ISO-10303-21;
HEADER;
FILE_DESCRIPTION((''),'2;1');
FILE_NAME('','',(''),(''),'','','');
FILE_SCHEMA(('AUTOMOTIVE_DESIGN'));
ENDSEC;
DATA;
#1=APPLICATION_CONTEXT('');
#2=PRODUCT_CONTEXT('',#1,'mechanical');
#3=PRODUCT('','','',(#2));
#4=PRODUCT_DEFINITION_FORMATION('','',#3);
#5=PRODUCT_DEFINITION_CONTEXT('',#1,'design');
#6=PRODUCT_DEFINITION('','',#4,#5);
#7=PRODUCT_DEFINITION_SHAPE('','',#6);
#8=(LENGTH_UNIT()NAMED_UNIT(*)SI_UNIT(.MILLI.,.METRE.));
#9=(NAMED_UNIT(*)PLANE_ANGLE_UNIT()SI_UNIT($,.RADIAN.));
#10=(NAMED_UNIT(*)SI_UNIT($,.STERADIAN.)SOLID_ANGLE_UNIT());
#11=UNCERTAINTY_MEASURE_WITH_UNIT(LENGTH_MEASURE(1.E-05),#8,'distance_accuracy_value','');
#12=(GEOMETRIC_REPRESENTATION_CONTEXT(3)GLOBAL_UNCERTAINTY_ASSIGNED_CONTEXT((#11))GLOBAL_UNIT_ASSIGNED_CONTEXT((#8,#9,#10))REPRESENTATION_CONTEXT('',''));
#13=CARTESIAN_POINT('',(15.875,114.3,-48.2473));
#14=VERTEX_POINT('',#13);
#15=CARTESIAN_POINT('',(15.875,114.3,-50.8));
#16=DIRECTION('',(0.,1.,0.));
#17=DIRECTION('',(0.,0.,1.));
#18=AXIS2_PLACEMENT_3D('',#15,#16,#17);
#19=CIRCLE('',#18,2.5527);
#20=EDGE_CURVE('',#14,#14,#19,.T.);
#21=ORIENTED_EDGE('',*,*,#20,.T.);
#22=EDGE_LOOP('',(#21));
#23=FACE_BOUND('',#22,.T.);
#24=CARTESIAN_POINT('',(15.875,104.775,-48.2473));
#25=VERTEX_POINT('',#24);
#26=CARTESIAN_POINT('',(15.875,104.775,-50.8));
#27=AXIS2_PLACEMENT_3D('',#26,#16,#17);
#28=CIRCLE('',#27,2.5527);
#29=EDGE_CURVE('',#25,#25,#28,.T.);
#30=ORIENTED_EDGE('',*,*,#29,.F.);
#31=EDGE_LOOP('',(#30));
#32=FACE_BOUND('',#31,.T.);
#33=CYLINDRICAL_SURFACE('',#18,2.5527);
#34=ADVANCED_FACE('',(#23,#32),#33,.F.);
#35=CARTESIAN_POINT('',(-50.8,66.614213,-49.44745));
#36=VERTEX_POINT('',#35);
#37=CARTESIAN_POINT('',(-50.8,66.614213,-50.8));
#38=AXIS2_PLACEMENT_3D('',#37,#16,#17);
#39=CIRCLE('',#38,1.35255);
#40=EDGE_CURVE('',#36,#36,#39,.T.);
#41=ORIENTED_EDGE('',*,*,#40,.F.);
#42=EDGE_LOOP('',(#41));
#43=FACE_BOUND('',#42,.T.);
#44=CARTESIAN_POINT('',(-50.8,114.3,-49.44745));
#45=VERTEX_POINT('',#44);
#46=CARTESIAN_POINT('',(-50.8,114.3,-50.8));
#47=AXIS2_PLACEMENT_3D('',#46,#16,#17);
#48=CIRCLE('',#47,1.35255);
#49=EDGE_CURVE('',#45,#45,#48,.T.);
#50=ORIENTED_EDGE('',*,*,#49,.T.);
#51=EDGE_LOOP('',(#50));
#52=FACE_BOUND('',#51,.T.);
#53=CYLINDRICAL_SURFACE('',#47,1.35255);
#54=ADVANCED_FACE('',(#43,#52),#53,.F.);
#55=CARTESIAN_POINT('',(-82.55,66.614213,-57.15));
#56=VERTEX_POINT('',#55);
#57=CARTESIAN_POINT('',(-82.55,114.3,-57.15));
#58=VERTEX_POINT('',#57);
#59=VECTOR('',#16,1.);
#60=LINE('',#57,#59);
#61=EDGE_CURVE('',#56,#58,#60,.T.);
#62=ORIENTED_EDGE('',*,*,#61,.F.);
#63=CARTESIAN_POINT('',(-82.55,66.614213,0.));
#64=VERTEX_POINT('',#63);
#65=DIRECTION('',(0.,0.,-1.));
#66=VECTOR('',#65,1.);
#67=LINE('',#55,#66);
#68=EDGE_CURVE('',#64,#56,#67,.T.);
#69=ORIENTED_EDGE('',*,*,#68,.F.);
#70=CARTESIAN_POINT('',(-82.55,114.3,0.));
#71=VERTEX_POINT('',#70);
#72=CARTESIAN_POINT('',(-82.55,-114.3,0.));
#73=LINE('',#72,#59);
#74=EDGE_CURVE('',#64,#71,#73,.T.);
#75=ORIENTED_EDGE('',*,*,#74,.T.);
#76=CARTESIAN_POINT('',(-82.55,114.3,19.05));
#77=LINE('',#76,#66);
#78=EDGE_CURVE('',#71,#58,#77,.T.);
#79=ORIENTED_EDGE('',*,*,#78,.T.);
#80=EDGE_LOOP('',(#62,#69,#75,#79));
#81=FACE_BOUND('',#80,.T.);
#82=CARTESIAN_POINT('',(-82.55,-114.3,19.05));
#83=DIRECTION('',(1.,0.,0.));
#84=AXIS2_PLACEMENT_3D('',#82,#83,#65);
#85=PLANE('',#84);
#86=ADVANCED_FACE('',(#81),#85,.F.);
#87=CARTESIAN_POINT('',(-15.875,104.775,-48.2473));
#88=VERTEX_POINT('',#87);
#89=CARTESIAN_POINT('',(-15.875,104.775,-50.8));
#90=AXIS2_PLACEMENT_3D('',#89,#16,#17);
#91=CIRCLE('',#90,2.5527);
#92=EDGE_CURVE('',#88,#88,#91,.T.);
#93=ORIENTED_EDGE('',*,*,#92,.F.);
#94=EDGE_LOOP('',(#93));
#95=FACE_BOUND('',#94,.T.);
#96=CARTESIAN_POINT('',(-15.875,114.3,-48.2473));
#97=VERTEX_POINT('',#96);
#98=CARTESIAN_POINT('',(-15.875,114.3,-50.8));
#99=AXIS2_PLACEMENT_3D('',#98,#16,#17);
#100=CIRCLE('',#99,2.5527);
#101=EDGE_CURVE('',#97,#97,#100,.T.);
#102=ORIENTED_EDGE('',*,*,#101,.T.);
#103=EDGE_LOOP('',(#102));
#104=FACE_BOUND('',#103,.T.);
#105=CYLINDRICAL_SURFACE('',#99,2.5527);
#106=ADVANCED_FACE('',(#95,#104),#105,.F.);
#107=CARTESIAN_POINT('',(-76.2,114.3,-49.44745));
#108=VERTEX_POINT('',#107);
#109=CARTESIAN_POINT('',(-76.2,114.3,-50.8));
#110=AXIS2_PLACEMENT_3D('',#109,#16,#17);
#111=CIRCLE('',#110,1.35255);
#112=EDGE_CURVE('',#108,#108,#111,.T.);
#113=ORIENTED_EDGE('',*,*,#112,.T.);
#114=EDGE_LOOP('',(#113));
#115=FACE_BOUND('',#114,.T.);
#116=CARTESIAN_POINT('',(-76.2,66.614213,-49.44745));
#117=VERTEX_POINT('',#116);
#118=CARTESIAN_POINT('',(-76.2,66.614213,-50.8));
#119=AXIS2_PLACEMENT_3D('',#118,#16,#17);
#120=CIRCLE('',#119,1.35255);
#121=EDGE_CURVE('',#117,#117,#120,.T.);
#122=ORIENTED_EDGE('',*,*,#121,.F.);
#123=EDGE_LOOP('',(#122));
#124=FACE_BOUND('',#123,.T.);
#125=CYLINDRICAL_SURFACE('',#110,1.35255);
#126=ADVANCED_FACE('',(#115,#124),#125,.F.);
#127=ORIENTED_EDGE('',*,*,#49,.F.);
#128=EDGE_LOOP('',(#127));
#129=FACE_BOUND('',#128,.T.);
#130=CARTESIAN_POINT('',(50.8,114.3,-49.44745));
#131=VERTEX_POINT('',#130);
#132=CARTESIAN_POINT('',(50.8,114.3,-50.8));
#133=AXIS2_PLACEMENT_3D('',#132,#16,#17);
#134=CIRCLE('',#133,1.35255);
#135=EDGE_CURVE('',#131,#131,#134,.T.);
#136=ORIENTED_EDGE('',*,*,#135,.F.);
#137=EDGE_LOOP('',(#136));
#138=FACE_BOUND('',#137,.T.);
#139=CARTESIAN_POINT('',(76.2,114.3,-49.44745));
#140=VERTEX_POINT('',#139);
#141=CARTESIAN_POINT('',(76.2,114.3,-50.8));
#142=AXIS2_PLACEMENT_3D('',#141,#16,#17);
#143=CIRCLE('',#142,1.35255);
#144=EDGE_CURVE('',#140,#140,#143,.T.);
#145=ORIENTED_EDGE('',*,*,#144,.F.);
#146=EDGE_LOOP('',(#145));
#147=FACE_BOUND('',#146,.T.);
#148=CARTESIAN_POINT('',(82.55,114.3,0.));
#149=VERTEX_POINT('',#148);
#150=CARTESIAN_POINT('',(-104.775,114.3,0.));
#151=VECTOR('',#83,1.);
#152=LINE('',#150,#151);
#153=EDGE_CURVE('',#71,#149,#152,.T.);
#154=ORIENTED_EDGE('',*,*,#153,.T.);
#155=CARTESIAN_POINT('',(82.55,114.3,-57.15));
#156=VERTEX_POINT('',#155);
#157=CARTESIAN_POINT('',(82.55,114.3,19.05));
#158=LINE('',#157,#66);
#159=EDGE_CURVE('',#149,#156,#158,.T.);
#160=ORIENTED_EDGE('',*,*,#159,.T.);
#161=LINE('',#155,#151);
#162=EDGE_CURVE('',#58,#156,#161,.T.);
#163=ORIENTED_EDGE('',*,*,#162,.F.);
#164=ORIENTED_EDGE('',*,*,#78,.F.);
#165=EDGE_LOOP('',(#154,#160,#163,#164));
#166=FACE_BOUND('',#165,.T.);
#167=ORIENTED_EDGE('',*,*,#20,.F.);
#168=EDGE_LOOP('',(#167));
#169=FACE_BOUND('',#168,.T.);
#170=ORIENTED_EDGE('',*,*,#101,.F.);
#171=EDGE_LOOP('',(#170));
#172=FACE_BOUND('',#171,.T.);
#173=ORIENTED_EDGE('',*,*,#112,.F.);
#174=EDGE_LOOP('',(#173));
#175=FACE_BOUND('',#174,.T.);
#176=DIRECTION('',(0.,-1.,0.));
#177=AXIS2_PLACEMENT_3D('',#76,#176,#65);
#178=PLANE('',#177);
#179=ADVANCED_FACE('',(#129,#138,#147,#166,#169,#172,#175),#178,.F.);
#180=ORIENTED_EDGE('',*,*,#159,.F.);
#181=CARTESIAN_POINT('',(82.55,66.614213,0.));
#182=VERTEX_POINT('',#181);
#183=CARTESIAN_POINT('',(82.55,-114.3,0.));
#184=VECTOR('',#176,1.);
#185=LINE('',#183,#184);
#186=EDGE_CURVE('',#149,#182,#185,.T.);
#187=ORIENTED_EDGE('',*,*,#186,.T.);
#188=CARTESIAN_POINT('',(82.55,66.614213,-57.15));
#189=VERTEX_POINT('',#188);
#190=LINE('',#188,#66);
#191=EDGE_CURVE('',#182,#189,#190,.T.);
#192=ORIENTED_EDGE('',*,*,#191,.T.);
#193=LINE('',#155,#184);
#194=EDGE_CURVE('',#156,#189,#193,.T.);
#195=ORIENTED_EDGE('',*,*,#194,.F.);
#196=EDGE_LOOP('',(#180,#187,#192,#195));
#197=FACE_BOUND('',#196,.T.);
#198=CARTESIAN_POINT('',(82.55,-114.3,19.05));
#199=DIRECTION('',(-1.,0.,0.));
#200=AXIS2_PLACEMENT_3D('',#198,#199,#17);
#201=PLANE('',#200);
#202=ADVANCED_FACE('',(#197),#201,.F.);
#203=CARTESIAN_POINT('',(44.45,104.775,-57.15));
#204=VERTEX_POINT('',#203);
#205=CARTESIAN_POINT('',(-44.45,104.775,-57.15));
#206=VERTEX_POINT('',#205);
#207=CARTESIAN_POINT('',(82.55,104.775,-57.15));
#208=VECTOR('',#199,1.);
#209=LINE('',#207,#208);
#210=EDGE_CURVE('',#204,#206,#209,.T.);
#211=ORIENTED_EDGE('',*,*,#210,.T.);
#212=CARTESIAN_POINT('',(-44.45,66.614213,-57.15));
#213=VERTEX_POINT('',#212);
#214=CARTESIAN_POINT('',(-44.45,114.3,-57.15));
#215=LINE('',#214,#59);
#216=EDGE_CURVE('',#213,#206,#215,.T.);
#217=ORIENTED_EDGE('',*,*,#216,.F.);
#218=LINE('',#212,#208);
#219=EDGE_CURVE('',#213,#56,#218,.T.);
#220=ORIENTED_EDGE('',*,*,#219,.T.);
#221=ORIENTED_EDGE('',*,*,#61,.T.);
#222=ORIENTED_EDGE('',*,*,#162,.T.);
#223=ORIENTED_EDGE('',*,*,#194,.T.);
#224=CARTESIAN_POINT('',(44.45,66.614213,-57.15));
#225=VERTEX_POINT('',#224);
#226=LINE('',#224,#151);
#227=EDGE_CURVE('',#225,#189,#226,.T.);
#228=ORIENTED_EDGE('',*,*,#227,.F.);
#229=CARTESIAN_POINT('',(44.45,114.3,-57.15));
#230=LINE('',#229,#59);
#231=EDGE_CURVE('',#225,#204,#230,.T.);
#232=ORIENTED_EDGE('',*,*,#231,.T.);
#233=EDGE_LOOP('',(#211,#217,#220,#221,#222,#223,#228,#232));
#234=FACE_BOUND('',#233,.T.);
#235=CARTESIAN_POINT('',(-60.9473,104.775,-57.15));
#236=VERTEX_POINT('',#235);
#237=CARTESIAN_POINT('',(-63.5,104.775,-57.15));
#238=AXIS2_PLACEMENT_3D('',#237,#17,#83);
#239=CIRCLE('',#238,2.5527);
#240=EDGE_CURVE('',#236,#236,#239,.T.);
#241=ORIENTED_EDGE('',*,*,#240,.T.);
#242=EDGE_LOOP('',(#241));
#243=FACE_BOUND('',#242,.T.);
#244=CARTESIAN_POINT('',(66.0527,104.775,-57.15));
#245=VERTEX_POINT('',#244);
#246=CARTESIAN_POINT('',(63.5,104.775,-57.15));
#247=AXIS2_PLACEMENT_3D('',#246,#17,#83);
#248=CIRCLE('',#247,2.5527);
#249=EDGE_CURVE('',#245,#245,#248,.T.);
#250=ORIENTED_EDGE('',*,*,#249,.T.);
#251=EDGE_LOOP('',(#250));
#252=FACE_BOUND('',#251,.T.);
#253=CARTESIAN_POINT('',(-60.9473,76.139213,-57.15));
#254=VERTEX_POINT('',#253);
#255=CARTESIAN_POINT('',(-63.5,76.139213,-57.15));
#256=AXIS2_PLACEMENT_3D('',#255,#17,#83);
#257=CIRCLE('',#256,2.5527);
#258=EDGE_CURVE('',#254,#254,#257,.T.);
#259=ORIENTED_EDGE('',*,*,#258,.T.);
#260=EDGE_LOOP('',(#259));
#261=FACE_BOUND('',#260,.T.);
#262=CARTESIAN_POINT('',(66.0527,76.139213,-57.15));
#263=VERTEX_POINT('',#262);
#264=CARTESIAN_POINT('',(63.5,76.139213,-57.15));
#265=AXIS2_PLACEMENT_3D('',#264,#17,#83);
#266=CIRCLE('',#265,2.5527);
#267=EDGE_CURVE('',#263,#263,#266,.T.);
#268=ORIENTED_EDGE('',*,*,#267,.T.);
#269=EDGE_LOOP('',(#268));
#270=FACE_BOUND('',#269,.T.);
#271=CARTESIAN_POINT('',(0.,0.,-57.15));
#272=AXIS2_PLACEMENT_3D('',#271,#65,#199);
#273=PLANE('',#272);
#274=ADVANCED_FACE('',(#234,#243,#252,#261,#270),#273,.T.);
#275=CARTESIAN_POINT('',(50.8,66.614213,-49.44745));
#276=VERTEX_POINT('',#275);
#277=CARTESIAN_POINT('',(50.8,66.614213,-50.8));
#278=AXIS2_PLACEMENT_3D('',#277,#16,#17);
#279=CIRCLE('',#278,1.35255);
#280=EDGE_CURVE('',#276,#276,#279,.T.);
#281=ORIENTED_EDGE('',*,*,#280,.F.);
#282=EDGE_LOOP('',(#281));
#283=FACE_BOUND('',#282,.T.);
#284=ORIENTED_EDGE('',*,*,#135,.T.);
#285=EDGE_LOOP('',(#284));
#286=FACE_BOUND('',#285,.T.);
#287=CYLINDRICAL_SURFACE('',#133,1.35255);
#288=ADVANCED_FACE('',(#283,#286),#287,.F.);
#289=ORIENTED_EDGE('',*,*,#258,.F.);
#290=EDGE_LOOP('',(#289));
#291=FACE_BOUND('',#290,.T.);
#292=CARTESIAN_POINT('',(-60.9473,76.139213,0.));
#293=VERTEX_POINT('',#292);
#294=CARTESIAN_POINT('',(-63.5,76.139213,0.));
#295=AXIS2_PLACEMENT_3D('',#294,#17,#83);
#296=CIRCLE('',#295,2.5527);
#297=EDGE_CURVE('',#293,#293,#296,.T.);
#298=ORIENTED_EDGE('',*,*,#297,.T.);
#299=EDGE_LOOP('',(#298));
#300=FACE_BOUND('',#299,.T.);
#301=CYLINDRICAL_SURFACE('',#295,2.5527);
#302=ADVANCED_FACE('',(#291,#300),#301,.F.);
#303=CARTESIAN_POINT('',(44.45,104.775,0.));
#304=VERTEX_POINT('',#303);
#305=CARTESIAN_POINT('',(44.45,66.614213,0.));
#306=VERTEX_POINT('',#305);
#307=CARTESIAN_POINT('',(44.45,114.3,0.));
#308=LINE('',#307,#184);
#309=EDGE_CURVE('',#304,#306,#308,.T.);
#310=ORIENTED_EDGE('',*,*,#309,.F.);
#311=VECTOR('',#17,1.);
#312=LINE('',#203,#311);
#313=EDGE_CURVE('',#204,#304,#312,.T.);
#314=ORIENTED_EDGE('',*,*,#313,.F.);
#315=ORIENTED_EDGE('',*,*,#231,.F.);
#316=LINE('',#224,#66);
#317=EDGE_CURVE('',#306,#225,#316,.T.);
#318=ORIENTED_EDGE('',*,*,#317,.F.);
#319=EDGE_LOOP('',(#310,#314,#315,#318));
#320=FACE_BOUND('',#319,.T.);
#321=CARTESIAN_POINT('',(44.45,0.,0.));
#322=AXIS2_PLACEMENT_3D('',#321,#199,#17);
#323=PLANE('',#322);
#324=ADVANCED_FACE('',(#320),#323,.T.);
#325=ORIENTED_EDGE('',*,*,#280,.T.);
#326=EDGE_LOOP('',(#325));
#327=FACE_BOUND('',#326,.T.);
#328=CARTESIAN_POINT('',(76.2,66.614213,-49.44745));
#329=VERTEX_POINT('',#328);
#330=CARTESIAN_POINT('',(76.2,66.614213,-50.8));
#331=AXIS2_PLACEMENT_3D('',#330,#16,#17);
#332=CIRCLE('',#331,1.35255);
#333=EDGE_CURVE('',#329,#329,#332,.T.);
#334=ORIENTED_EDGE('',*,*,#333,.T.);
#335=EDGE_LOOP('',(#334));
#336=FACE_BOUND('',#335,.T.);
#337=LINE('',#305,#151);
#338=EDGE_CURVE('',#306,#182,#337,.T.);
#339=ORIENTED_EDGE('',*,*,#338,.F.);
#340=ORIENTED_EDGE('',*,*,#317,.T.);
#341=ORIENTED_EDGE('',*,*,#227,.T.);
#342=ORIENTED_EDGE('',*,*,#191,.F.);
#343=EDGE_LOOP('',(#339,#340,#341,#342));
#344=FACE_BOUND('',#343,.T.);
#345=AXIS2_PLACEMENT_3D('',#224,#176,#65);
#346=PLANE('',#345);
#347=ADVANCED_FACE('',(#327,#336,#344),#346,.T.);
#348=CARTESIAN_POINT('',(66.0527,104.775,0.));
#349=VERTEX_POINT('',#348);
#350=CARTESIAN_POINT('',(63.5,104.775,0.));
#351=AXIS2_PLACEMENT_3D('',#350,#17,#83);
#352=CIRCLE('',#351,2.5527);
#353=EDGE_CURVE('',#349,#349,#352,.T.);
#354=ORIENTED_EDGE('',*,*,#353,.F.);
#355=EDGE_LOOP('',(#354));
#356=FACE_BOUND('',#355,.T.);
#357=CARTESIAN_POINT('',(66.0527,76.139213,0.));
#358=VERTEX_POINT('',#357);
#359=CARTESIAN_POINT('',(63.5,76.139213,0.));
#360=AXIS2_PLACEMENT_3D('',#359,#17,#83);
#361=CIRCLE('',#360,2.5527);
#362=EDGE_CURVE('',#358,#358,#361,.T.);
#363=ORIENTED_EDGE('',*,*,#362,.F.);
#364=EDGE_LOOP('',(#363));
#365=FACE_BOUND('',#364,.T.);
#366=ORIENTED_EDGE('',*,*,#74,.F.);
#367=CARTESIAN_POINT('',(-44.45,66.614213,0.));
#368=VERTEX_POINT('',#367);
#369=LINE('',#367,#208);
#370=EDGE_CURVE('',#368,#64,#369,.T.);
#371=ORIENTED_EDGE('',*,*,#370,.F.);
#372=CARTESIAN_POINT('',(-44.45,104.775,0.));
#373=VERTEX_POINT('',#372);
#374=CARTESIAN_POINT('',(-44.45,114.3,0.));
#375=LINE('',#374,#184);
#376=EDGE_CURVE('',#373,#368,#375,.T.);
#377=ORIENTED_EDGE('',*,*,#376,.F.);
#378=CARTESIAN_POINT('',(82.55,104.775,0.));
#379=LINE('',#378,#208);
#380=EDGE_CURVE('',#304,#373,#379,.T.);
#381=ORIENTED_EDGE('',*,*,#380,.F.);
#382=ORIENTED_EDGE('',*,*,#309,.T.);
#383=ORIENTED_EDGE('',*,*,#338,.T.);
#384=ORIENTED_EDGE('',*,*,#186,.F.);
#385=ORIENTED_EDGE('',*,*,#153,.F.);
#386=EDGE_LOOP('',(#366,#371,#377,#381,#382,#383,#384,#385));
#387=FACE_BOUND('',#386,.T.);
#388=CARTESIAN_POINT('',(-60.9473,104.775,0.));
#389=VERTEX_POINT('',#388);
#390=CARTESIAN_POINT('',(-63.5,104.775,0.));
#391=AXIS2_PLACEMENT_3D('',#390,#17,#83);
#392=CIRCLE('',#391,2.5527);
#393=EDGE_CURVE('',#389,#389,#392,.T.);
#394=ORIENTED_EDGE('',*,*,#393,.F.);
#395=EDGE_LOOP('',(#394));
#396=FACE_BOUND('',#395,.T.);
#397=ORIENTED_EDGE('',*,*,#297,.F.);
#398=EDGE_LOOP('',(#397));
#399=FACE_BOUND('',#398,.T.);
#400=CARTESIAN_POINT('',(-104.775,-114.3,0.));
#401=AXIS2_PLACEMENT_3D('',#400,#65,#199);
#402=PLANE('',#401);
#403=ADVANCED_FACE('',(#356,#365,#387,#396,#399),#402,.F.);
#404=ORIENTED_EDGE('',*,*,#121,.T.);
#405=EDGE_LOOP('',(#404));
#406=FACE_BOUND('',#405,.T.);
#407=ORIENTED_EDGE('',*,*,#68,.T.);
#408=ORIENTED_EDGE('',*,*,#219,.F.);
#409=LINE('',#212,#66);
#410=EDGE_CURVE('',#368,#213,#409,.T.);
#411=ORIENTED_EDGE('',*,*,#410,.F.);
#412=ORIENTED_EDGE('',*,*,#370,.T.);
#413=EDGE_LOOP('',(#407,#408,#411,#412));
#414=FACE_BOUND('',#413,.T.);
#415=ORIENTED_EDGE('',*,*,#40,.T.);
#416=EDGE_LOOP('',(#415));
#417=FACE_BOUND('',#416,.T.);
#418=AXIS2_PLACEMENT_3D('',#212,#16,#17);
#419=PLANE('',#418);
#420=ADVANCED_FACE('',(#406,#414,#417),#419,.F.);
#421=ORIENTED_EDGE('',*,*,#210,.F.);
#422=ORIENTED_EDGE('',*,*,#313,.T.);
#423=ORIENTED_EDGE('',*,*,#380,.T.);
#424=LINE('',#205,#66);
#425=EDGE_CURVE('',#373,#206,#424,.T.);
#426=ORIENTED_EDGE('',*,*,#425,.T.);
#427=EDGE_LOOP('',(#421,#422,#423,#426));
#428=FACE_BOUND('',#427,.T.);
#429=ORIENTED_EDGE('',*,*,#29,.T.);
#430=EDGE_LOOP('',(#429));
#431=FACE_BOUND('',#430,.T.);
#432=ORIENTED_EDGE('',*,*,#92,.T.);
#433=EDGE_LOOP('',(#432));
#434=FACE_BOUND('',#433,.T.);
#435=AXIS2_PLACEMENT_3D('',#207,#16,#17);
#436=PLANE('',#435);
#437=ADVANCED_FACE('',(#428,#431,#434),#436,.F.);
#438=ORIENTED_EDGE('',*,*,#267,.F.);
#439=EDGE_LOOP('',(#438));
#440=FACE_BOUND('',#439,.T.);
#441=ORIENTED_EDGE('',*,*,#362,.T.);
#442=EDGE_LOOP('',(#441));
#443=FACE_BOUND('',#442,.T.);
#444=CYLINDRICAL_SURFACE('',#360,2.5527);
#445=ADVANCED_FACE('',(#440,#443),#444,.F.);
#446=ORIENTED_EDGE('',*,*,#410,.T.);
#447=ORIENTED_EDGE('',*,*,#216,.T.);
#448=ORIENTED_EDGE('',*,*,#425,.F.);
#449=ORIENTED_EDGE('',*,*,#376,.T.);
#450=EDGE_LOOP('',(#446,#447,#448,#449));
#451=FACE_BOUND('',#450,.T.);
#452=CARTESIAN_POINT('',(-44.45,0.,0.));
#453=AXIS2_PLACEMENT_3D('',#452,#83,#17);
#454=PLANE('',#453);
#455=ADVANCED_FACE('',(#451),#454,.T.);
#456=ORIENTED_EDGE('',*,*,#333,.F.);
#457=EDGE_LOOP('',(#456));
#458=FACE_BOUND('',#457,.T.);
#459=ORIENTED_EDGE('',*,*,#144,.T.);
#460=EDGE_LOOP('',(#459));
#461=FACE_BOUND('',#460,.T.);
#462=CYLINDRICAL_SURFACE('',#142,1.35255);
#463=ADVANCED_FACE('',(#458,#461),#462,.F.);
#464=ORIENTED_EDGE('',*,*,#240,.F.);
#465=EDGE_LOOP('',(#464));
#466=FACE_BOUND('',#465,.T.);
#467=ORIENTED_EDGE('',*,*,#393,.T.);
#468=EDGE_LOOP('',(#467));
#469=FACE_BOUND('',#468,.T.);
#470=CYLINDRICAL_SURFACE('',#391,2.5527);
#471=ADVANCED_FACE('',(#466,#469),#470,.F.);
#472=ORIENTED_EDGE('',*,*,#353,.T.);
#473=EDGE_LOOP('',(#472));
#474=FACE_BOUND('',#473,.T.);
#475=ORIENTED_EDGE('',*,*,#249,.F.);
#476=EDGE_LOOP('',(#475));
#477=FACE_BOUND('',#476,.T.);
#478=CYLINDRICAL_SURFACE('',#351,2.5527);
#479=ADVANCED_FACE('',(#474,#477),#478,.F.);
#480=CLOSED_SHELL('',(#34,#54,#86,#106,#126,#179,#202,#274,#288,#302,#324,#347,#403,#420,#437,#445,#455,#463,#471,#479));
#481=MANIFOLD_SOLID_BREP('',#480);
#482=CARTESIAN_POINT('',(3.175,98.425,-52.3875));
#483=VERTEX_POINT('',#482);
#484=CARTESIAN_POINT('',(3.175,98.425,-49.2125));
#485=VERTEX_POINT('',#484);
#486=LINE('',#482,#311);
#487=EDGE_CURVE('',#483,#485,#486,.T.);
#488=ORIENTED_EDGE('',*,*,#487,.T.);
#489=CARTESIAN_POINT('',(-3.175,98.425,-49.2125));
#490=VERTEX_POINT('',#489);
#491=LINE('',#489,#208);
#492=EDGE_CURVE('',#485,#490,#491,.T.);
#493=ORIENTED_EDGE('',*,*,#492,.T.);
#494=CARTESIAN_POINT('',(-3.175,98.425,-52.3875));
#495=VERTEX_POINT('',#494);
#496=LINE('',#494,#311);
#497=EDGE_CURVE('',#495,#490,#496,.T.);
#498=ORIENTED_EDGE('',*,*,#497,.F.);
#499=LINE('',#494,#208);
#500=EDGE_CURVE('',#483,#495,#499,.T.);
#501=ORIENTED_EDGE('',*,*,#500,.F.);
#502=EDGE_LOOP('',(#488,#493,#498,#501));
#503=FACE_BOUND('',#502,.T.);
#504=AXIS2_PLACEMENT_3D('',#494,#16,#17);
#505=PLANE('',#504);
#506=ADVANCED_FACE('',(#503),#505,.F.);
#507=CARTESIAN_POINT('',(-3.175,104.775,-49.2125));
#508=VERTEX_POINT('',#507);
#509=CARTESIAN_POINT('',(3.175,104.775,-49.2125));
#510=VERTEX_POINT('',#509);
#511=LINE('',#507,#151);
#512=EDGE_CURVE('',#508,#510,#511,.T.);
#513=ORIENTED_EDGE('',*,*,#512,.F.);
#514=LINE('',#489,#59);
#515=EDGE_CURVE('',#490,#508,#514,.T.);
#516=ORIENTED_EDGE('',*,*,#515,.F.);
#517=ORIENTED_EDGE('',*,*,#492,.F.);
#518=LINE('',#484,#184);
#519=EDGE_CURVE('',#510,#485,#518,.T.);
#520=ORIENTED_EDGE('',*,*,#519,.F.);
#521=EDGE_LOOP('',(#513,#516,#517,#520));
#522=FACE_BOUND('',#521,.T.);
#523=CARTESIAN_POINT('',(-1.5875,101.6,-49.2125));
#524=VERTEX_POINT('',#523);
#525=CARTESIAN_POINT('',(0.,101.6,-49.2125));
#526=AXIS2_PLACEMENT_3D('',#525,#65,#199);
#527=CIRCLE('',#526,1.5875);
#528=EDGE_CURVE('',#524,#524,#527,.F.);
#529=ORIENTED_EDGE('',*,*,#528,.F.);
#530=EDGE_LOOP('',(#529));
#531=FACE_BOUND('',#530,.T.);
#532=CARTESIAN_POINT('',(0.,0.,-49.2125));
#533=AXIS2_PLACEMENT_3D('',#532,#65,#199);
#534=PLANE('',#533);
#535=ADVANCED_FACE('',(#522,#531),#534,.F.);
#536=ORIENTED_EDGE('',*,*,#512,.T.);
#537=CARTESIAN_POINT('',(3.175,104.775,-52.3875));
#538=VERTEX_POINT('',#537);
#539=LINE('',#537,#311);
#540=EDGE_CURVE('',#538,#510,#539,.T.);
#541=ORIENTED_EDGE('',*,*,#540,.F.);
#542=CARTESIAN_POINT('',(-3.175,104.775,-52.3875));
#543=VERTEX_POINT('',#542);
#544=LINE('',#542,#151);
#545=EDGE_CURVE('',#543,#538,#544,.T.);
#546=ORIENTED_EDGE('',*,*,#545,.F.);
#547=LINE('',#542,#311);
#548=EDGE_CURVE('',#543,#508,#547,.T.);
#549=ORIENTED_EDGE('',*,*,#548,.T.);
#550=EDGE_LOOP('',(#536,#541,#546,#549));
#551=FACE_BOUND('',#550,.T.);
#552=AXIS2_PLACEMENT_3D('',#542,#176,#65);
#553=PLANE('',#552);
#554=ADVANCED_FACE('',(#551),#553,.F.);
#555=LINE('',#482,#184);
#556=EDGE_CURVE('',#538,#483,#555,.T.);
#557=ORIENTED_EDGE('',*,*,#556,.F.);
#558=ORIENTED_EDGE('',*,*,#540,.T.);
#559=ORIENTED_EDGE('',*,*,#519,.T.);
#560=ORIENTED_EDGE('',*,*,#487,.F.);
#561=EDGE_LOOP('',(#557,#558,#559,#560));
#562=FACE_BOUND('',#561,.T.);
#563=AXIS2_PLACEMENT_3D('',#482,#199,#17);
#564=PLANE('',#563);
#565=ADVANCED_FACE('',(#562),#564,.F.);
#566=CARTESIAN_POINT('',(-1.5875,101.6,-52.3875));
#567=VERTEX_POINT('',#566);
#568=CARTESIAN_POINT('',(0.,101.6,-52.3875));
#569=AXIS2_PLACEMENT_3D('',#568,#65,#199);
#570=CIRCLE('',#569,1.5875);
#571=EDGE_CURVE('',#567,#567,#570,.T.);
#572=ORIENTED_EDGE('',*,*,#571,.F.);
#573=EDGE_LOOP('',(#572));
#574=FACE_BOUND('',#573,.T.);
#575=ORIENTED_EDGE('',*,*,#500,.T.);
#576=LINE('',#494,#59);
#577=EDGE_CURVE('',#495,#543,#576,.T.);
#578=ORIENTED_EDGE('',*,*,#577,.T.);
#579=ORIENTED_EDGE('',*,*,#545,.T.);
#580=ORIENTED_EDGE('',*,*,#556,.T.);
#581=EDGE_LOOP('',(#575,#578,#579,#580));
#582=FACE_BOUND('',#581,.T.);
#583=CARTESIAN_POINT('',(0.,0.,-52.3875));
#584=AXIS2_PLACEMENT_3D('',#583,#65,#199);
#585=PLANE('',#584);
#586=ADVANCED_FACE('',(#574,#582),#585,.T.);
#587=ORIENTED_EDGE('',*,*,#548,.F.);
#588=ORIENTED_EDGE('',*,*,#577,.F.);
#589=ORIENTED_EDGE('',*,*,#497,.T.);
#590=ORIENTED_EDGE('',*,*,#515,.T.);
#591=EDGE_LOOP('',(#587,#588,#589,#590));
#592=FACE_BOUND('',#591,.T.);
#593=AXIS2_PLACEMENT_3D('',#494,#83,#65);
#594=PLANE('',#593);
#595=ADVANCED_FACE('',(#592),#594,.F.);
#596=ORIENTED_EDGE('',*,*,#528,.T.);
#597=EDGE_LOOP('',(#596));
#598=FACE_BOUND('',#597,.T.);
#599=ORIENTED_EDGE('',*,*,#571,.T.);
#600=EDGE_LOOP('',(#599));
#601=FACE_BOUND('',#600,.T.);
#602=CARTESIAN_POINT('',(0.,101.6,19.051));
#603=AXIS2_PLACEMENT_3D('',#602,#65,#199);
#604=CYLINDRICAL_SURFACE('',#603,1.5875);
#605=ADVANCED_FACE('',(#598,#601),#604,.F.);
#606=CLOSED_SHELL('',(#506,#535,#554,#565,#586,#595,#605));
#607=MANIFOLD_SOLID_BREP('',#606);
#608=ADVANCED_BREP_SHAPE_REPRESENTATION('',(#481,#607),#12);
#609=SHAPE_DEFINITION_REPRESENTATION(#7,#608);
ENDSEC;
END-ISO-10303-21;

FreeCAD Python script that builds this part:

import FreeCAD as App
import Part
import Sketcher
Q = App.Units.Quantity


def add_polygon(sketch, points):
    """Adds a closed chain of lines whose ends are joined by coincident constraints."""
    first, n = sketch.GeometryCount, len(points)
    for a, b in zip(points, points[1:] + points[:1]):
        sketch.addGeometry(Part.LineSegment(App.Vector(*a, 0), App.Vector(*b, 0)), False)
    for i in range(n):
        sketch.addConstraint(Sketcher.Constraint("Coincident", first + i, 2, first + (i + 1) % n, 1))

doc = App.newDocument("Part")
body = doc.addObject("PartDesign::Body", "Body")

# Sketch on XY plane
sketch1 = body.newObject("Sketcher::SketchObject", "Sketch")
sketch1.AttachmentSupport = (doc.getObject("XY_Plane"), [""])
sketch1.MapMode = "FlatFace"
add_polygon(sketch1, [(-83, 114), (-83, -114), (83, -114), (83, 114)])  # lines 0-3
sketch1.addConstraint([
    Sketcher.Constraint("Vertical", 0),
    Sketcher.Constraint("Horizontal", 1),
    Sketcher.Constraint("Vertical", 2),
    Sketcher.Constraint("Horizontal", 3),
    Sketcher.Constraint("Symmetric", 0, 2, 2, 2, -1, 1),
    Sketcher.Constraint("DistanceY", 0, 2, 0, 1, Q("9 in")),
    Sketcher.Constraint("DistanceX", 1, 1, 1, 2, Q("6.5 in")),
])
pad1 = body.newObject("PartDesign::Pad", "Pad")
pad1.Profile = sketch1
pad1.Length = Q("0.75 in")

# Sketch on XY plane
sketch2 = body.newObject("Sketcher::SketchObject", "Sketch001")
sketch2.AttachmentSupport = (doc.getObject("XY_Plane"), [""])
sketch2.MapMode = "FlatFace"
sketch2.AttachmentOffset = App.Placement(App.Vector(0, 0, 0.75 * 25.4), App.Rotation())
add_polygon(sketch2, [(-38, 89), (-38, -114), (38, -114), (38, 89)])  # lines 0-3
sketch2.addConstraint([
    Sketcher.Constraint("Vertical", 0),
    Sketcher.Constraint("Horizontal", 1),
    Sketcher.Constraint("Vertical", 2),
    Sketcher.Constraint("Horizontal", 3),
    Sketcher.Constraint("DistanceX", 1, 1, 1, 2, Q("3 in")),
    Sketcher.Constraint("DistanceY", 0, 2, 0, 1, Q("8 in")),
    Sketcher.Constraint("DistanceX", 0, 2, -1, 1, Q("1.5 in")),
    Sketcher.Constraint("DistanceY", 0, 2, -1, 1, Q("4.5 in")),
])
pocket1 = body.newObject("PartDesign::Pocket", "Pocket")
pocket1.Profile = sketch2
pocket1.Type = "ThroughAll"

# Sketch on XY plane
sketch3 = body.newObject("Sketcher::SketchObject", "Sketch002")
sketch3.AttachmentSupport = (doc.getObject("XY_Plane"), [""])
sketch3.MapMode = "FlatFace"
add_polygon(sketch3, [(83, 114), (83, 105), (-83, 105), (-83, 114)])  # lines 0-3
sketch3.addConstraint([
    Sketcher.Constraint("Vertical", 0),
    Sketcher.Constraint("Horizontal", 1),
    Sketcher.Constraint("Vertical", 2),
    Sketcher.Constraint("Horizontal", 3),
    Sketcher.Constraint("DistanceX", 1, 2, 1, 1, Q("6.5 in")),
    Sketcher.Constraint("DistanceY", -1, 1, 2, 2, Q("4.5 in")),
    Sketcher.Constraint("DistanceY", 0, 2, 0, 1, Q("0.375 in")),
    Sketcher.Constraint("DistanceX", -1, 1, 0, 2, Q("3.25 in")),
])
pad2 = body.newObject("PartDesign::Pad", "Pad001")
pad2.Profile = sketch3
pad2.Length = Q("2.25 in")
pad2.Reversed = True

# Sketch on XY plane
sketch4 = body.newObject("Sketcher::SketchObject", "Sketch003")
sketch4.AttachmentSupport = (doc.getObject("XY_Plane"), [""])
sketch4.MapMode = "FlatFace"
sketch4.AttachmentOffset = App.Placement(App.Vector(0, 0, -2.25 * 25.4), App.Rotation())
add_polygon(sketch4, [(83, 105), (83, 67), (64, 67), (64, 105)])  # lines 0-3
sketch4.addConstraint([
    Sketcher.Constraint("Vertical", 0),
    Sketcher.Constraint("Horizontal", 1),
    Sketcher.Constraint("Vertical", 2),
    Sketcher.Constraint("Horizontal", 3),
    Sketcher.Constraint("DistanceY", 0, 2, 0, 1, Q("1.5 in")),
    Sketcher.Constraint("DistanceX", 1, 2, 1, 1, Q("0.75 in")),
    Sketcher.Constraint("DistanceX", -1, 1, 1, 2, Q("2.5 in")),
    Sketcher.Constraint("DistanceY", -1, 1, 0, 2, Q("2.625 in")),
])
pad3 = body.newObject("PartDesign::Pad", "Pad002")
pad3.Profile = sketch4
pad3.Length = Q("0.5 in")
doc.recompute()

mirrored = body.newObject("PartDesign::Mirrored", "Mirrored")
mirrored.Originals = [pad3]
mirrored.MirrorPlane = (doc.getObject("YZ_Plane"), [""])
body.Tip = mirrored

# Sketch on XY plane
sketch5 = body.newObject("Sketcher::SketchObject", "Sketch004")
sketch5.AttachmentSupport = (doc.getObject("XY_Plane"), [""])
sketch5.MapMode = "FlatFace"
sketch5.AttachmentOffset = App.Placement(App.Vector(0, 0, 0.75 * 25.4), App.Rotation())
add_polygon(sketch5, [(-105, -102), (-105, -114), (-16, -114), (-16, -102)])  # lines 0-3
sketch5.addConstraint([
    Sketcher.Constraint("Vertical", 0),
    Sketcher.Constraint("Horizontal", 1),
    Sketcher.Constraint("Vertical", 2),
    Sketcher.Constraint("Horizontal", 3),
    Sketcher.Constraint("DistanceX", 1, 1, 1, 2, Q("3.5 in")),
    Sketcher.Constraint("DistanceY", 0, 2, 0, 1, Q("0.5 in")),
    Sketcher.Constraint("DistanceY", 2, 2, -1, 1, Q("4 in")),
    Sketcher.Constraint("DistanceX", 0, 2, -1, 1, Q("4.125 in")),
])
pad4 = body.newObject("PartDesign::Pad", "Pad003")
pad4.Profile = sketch5
pad4.Length = Q("0.75 in")
pad4.Reversed = True

# Sketch on XZ plane
sketch6 = body.newObject("Sketcher::SketchObject", "Sketch005")
sketch6.AttachmentSupport = (doc.getObject("XZ_Plane"), [""])
sketch6.MapMode = "FlatFace"
sketch6.AttachmentOffset = App.Placement(App.Vector(0, 0, 4.5 * 25.4), App.Rotation())
add_polygon(sketch6, [(-19, 0), (-19, 19), (-102, 19), (-102, 0)])  # lines 0-3
sketch6.addConstraint([
    Sketcher.Constraint("Vertical", 0),
    Sketcher.Constraint("Horizontal", 1),
    Sketcher.Constraint("Vertical", 2),
    Sketcher.Constraint("Horizontal", 3),
    Sketcher.Constraint("PointOnObject", 2, 2, -1),
    Sketcher.Constraint("DistanceX", 1, 2, -1, 1, Q("4 in")),
    Sketcher.Constraint("DistanceX", 1, 2, 1, 1, Q("3.25 in")),
    Sketcher.Constraint("DistanceY", 0, 1, 0, 2, Q("0.75 in")),
])
pocket2 = body.newObject("PartDesign::Pocket", "Pocket001")
pocket2.Profile = sketch6
pocket2.Length = Q("0.1 in")
doc.recompute()

mirrored2 = body.newObject("PartDesign::Mirrored", "Mirrored001")
mirrored2.Originals = [pad4, pocket2]
mirrored2.MirrorPlane = (doc.getObject("YZ_Plane"), [""])
body.Tip = mirrored2

# Sketch on XZ plane
sketch7 = body.newObject("Sketcher::SketchObject", "Sketch006")
sketch7.AttachmentSupport = (doc.getObject("XZ_Plane"), [""])
sketch7.MapMode = "FlatFace"
sketch7.AttachmentOffset = App.Placement(App.Vector(0, 0, -4.5 * 25.4), App.Rotation())
sketch7.addGeometry([
    Part.Circle(App.Vector(-76.2, 12.7, 0), App.Vector(0, 0, 1), 1.7),
    Part.Circle(App.Vector(-63.5, 12.7, 0), App.Vector(0, 0, 1), 1.7),
    Part.Circle(App.Vector(63.5, 12.7, 0), App.Vector(0, 0, 1), 1.7),
    Part.Circle(App.Vector(76.2, 12.7, 0), App.Vector(0, 0, 1), 1.7),
], False)
sketch7.addConstraint([
    Sketcher.Constraint("Equal", 0, 1),
    Sketcher.Constraint("Equal", 1, 2),
    Sketcher.Constraint("Equal", 2, 3),
    Sketcher.Constraint("Symmetric", 1, 3, 2, 3, -2),
    Sketcher.Constraint("Symmetric", 0, 3, 3, 3, -2),
    Sketcher.Constraint("Horizontal", 0, 3, 1, 3),
    Sketcher.Constraint("Diameter", 0, Q("0.136 in")),
    Sketcher.Constraint("DistanceX", 0, 3, -1, 1, Q("3 in")),
    Sketcher.Constraint("DistanceX", 1, 3, 2, 3, Q("5 in")),
    Sketcher.Constraint("DistanceY", -1, 1, 0, 3, Q("0.5 in")),
])
doc.recompute()
hole = body.newObject("PartDesign::Hole", "Hole")
hole.Profile = sketch7
hole.ThreadType = "None"
hole.Diameter = Q("0.136 in")
hole.DepthType = "Dimension"
hole.Depth = Q("0.5 in")
hole.DrillPoint = "Angled"
hole.DrillPointAngle = 118
hole.Reversed = True

# Sketch on XZ plane
sketch8 = body.newObject("Sketcher::SketchObject", "Sketch007")
sketch8.AttachmentSupport = (doc.getObject("XZ_Plane"), [""])
sketch8.MapMode = "FlatFace"
sketch8.AttachmentOffset = App.Placement(App.Vector(0, 0, 4 * 25.4), App.Rotation())
sketch8.addGeometry([
    Part.Circle(App.Vector(-95.2, 6.3, 0), App.Vector(0, 0, 1), 3.4),
    Part.Circle(App.Vector(-25.4, 6.3, 0), App.Vector(0, 0, 1), 3.4),
    Part.Circle(App.Vector(25.4, 6.3, 0), App.Vector(0, 0, 1), 3.4),
    Part.Circle(App.Vector(95.2, 6.3, 0), App.Vector(0, 0, 1), 3.4),
], False)
sketch8.addConstraint([
    Sketcher.Constraint("Equal", 0, 1),
    Sketcher.Constraint("Equal", 1, 2),
    Sketcher.Constraint("Equal", 2, 3),
    Sketcher.Constraint("Symmetric", 1, 3, 2, 3, -2),
    Sketcher.Constraint("Symmetric", 0, 3, 3, 3, -2),
    Sketcher.Constraint("Horizontal", 0, 3, 1, 3),
    Sketcher.Constraint("Diameter", 0, Q("0.266 in")),
    Sketcher.Constraint("DistanceX", 1, 3, -1, 1, Q("1 in")),
    Sketcher.Constraint("DistanceX", 0, 3, 3, 3, Q("7.5 in")),
    Sketcher.Constraint("DistanceY", -1, 1, 0, 3, Q("0.25 in")),
])
doc.recompute()
hole2 = body.newObject("PartDesign::Hole", "Hole001")
hole2.Profile = sketch8
hole2.ThreadType = "None"
hole2.Diameter = Q("0.266 in")
hole2.DepthType = "Dimension"
hole2.Depth = Q("0.4 in")
hole2.DrillPoint = "Flat"
hole2.Reversed = True

# Sketch on XY plane
sketch9 = body.newObject("Sketcher::SketchObject", "Sketch008")
sketch9.AttachmentSupport = (doc.getObject("XY_Plane"), [""])
sketch9.MapMode = "FlatFace"
sketch9.AttachmentOffset = App.Placement(App.Vector(0, 0, 0.75 * 25.4), App.Rotation())
sketch9.addGeometry([
    Part.Circle(App.Vector(-76.2, 9.5, 0), App.Vector(0, 0, 1), 2.2),
    Part.Circle(App.Vector(-44.5, 9.5, 0), App.Vector(0, 0, 1), 2.2),
    Part.Circle(App.Vector(44.5, 9.5, 0), App.Vector(0, 0, 1), 2.2),
    Part.Circle(App.Vector(76.2, 9.5, 0), App.Vector(0, 0, 1), 2.2),
], False)
sketch9.addConstraint([
    Sketcher.Constraint("Equal", 0, 1),
    Sketcher.Constraint("Equal", 1, 2),
    Sketcher.Constraint("Equal", 2, 3),
    Sketcher.Constraint("Symmetric", 1, 3, 2, 3, -2),
    Sketcher.Constraint("Symmetric", 0, 3, 3, 3, -2),
    Sketcher.Constraint("Horizontal", 0, 3, 1, 3),
    Sketcher.Constraint("Diameter", 0, Q("0.177 in")),
    Sketcher.Constraint("DistanceX", 0, 3, -1, 1, Q("3 in")),
    Sketcher.Constraint("DistanceX", 1, 3, 2, 3, Q("3.5 in")),
    Sketcher.Constraint("DistanceY", -1, 1, 0, 3, Q("0.375 in")),
])
doc.recompute()
hole3 = body.newObject("PartDesign::Hole", "Hole002")
hole3.Profile = sketch9
hole3.ThreadType = "None"
hole3.Diameter = Q("0.177 in")
hole3.DepthType = "ThroughAll"
hole3.HoleCutType = "Counterbore"
hole3.HoleCutDiameter = Q("0.3125 in")
hole3.HoleCutDepth = Q("0.164 in")

# Sketch on XZ plane
sketch10 = body.newObject("Sketcher::SketchObject", "Sketch009")
sketch10.AttachmentSupport = (doc.getObject("XZ_Plane"), [""])
sketch10.MapMode = "FlatFace"
sketch10.AttachmentOffset = App.Placement(App.Vector(0, 0, -4.5 * 25.4), App.Rotation())
sketch10.addGeometry([
    Part.Circle(App.Vector(15.9, -50.8, 0), App.Vector(0, 0, 1), 2.6),
    Part.Circle(App.Vector(-15.9, -50.8, 0), App.Vector(0, 0, 1), 2.6),
], False)
sketch10.addConstraint([
    Sketcher.Constraint("Equal", 0, 1),
    Sketcher.Constraint("Symmetric", 0, 3, 1, 3, -2),
    Sketcher.Constraint("Diameter", 0, Q("0.201 in")),
    Sketcher.Constraint("DistanceY", 0, 3, -1, 1, Q("2 in")),
    Sketcher.Constraint("DistanceX", 1, 3, 0, 3, Q("1.25 in")),
])
doc.recompute()
hole4 = body.newObject("PartDesign::Hole", "Hole003")
hole4.Profile = sketch10
hole4.ThreadType = "None"
hole4.Diameter = Q("0.201 in")
hole4.DepthType = "ThroughAll"
hole4.Reversed = True

# Sketch on YZ plane
sketch11 = body.newObject("Sketcher::SketchObject", "Sketch010")
sketch11.AttachmentSupport = (doc.getObject("YZ_Plane"), [""])
sketch11.MapMode = "FlatFace"
sketch11.AttachmentOffset = App.Placement(App.Vector(0, 0, 3.25 * 25.4), App.Rotation())
add_polygon(sketch11, [(114, 0), (67, 0), (67, -57), (114, -57)])  # lines 0-3
sketch11.addConstraint([
    Sketcher.Constraint("Horizontal", 0),
    Sketcher.Constraint("Vertical", 1),
    Sketcher.Constraint("Horizontal", 2),
    Sketcher.Constraint("Vertical", 3),
    Sketcher.Constraint("PointOnObject", 0, 2, -1),
    Sketcher.Constraint("DistanceY", 1, 2, 1, 1, Q("2.25 in")),
    Sketcher.Constraint("DistanceX", -1, 1, 2, 2, Q("4.5 in")),
    Sketcher.Constraint("DistanceX", 0, 2, 0, 1, Q("47.685787 mm")),
])
pad5 = body.newObject("PartDesign::Pad", "Pad004")
pad5.Profile = sketch11
pad5.Length = Q("1.5 in")
pad5.Reversed = True
doc.recompute()

mirrored3 = body.newObject("PartDesign::Mirrored", "Mirrored002")
mirrored3.Originals = [pad5]
mirrored3.MirrorPlane = (doc.getObject("YZ_Plane"), [""])
body.Tip = mirrored3

# Sketch on YZ plane
sketch12 = body.newObject("Sketcher::SketchObject", "Sketch011")
sketch12.AttachmentSupport = (doc.getObject("YZ_Plane"), [""])
sketch12.MapMode = "FlatFace"
sketch12.AttachmentOffset = App.Placement(App.Vector(0, 0, 4.125 * 25.4), App.Rotation())
add_polygon(sketch12, [(114, 19), (-114, 19), (-114, 0), (114, 0)])  # lines 0-3
sketch12.addConstraint([
    Sketcher.Constraint("Horizontal", 0),
    Sketcher.Constraint("Vertical", 1),
    Sketcher.Constraint("Horizontal", 2),
    Sketcher.Constraint("Vertical", 3),
    Sketcher.Constraint("Symmetric", 1, 2, 2, 2, -1, 1),
    Sketcher.Constraint("DistanceX", 0, 2, 0, 1, Q("9 in")),
    Sketcher.Constraint("DistanceY", 1, 2, 1, 1, Q("0.75 in")),
])
pocket3 = body.newObject("PartDesign::Pocket", "Pocket002")
pocket3.Profile = sketch12
pocket3.Type = "ThroughAll"

# Sketch on YZ plane
sketch13 = body.newObject("Sketcher::SketchObject", "Sketch012")
sketch13.AttachmentSupport = (doc.getObject("YZ_Plane"), [""])
sketch13.MapMode = "FlatFace"
sketch13.AttachmentOffset = App.Placement(App.Vector(0, 0, -3 * 25.4), App.Rotation())
add_polygon(sketch13, [(66.6, -50.8), (114.3, -50.8), (114.3, -49.4), (66.6, -49.4)])  # lines 0-3
sketch13.addGeometry(Part.LineSegment(App.Vector(114.3, -50.8, 0), App.Vector(66.6, -50.8, 0)), True)  # axis
sketch13.addConstraint([
    Sketcher.Constraint("Horizontal", 0),
    Sketcher.Constraint("Vertical", 1),
    Sketcher.Constraint("Horizontal", 2),
    Sketcher.Constraint("Vertical", 3),
    Sketcher.Constraint("Horizontal", 4),
    Sketcher.Constraint("Coincident", 4, 1, 0, 2),
    Sketcher.Constraint("Vertical", 2, 2, 4, 2),
    Sketcher.Constraint("DistanceY", 0, 2, -1, 1, Q("2 in")),
    Sketcher.Constraint("DistanceX", -1, 1, 0, 2, Q("4.5 in")),
    Sketcher.Constraint("DistanceY", 1, 1, 1, 2, Q("1.35255 mm")),
    Sketcher.Constraint("DistanceX", 0, 1, 0, 2, Q("47.685787 mm")),
])
groove = body.newObject("PartDesign::Groove", "Groove")
groove.Profile = sketch13
groove.ReferenceAxis = (sketch13, ["Axis0"])
groove.Angle = 360
doc.recompute()

linearpattern = body.newObject("PartDesign::LinearPattern", "LinearPattern")
linearpattern.Originals = [groove]
linearpattern.Direction = (doc.getObject("X_Axis"), [""])
linearpattern.Mode = "offset"
linearpattern.Offset = Q("1 in")
linearpattern.Occurrences = 2
body.Tip = linearpattern
doc.recompute()

linearpattern2 = body.newObject("PartDesign::LinearPattern", "LinearPattern001")
linearpattern2.Originals = [groove]
linearpattern2.Direction = (doc.getObject("X_Axis"), [""])
linearpattern2.Mode = "offset"
linearpattern2.Offset = Q("5 in")
linearpattern2.Occurrences = 2
body.Tip = linearpattern2
doc.recompute()

linearpattern3 = body.newObject("PartDesign::LinearPattern", "LinearPattern002")
linearpattern3.Originals = [groove]
linearpattern3.Direction = (doc.getObject("X_Axis"), [""])
linearpattern3.Mode = "offset"
linearpattern3.Offset = Q("6 in")
linearpattern3.Occurrences = 2
body.Tip = linearpattern3

# Sketch on YZ plane
sketch14 = body.newObject("Sketcher::SketchObject", "Sketch013")
sketch14.AttachmentSupport = (doc.getObject("YZ_Plane"), [""])
sketch14.MapMode = "FlatFace"
sketch14.AttachmentOffset = App.Placement(App.Vector(0, 0, -2.5 * 25.4), App.Rotation())
add_polygon(sketch14, [(104.8, -57.1), (104.8, 0), (102.2, 0), (102.2, -57.1)])  # lines 0-3
sketch14.addGeometry(Part.LineSegment(App.Vector(104.8, 0, 0), App.Vector(104.8, -57.1, 0)), True)  # axis
sketch14.addConstraint([
    Sketcher.Constraint("Vertical", 0),
    Sketcher.Constraint("Horizontal", 1),
    Sketcher.Constraint("Vertical", 2),
    Sketcher.Constraint("Horizontal", 3),
    Sketcher.Constraint("Vertical", 4),
    Sketcher.Constraint("Coincident", 4, 1, 0, 2),
    Sketcher.Constraint("PointOnObject", 0, 2, -1),
    Sketcher.Constraint("Horizontal", 2, 2, 4, 2),
    Sketcher.Constraint("DistanceY", 0, 1, 0, 2, Q("2.25 in")),
    Sketcher.Constraint("DistanceX", 1, 2, 1, 1, Q("0.1005 in")),
    Sketcher.Constraint("DistanceX", -1, 1, 0, 2, Q("4.125 in")),
])
groove2 = body.newObject("PartDesign::Groove", "Groove001")
groove2.Profile = sketch14
groove2.ReferenceAxis = (sketch14, ["Axis0"])
groove2.Angle = 360
doc.recompute()

linearpattern4 = body.newObject("PartDesign::LinearPattern", "LinearPattern003")
linearpattern4.Originals = [groove2]
linearpattern4.Direction = (doc.getObject("Y_Axis"), [""])
linearpattern4.Mode = "offset"
linearpattern4.Offset = 28.635787
linearpattern4.Occurrences = 2
linearpattern4.Reversed = True
body.Tip = linearpattern4
doc.recompute()

linearpattern5 = body.newObject("PartDesign::LinearPattern", "LinearPattern004")
linearpattern5.Originals = [groove2]
linearpattern5.Direction = (doc.getObject("X_Axis"), [""])
linearpattern5.Mode = "offset"
linearpattern5.Offset = Q("5 in")
linearpattern5.Occurrences = 2
body.Tip = linearpattern5
doc.recompute()

datumline = body.newObject("PartDesign::Line", "DatumLine")
datumline.Placement = App.Placement(App.Vector(0, 0, 0), App.Rotation(App.Vector(0, 0, 1), App.Vector(0.975509661, -0.219956589, 0)))
linearpattern6 = body.newObject("PartDesign::LinearPattern", "LinearPattern005")
linearpattern6.Originals = [groove2]
linearpattern6.Direction = (datumline, [""])
linearpattern6.Mode = "offset"
linearpattern6.Offset = 130.188357
linearpattern6.Occurrences = 2
body.Tip = linearpattern6
body2 = doc.addObject("PartDesign::Body", "Body001")

# Sketch on XY plane
sketch15 = body2.newObject("Sketcher::SketchObject", "Sketch014")
sketch15.AttachmentSupport = (doc.getObject("XY_Plane001"), [""])
sketch15.MapMode = "FlatFace"
sketch15.AttachmentOffset = App.Placement(App.Vector(0, 0, -1.9375 * 25.4), App.Rotation())
add_polygon(sketch15, [(3, 105), (3, 98), (-3, 98), (-3, 105)])  # lines 0-3
sketch15.addConstraint([
    Sketcher.Constraint("Vertical", 0),
    Sketcher.Constraint("Horizontal", 1),
    Sketcher.Constraint("Vertical", 2),
    Sketcher.Constraint("Horizontal", 3),
    Sketcher.Constraint("Equal", 3, 0),
    Sketcher.Constraint("DistanceX", 1, 2, 1, 1, Q("0.25 in")),
    Sketcher.Constraint("DistanceX", -1, 1, 0, 2, Q("0.125 in")),
    Sketcher.Constraint("DistanceY", -1, 1, 0, 2, Q("3.875 in")),
])
pad6 = body2.newObject("PartDesign::Pad", "Pad005")
pad6.Profile = sketch15
pad6.Length = Q("0.125 in")
pad6.Reversed = True

# Sketch on XY plane
sketch16 = body2.newObject("Sketcher::SketchObject", "Sketch015")
sketch16.AttachmentSupport = (doc.getObject("XY_Plane001"), [""])
sketch16.MapMode = "FlatFace"
sketch16.AttachmentOffset = App.Placement(App.Vector(0, 0, -2.0625 * 25.4), App.Rotation())
sketch16.addGeometry(Part.Circle(App.Vector(0, 101.6, 0), App.Vector(0, 0, 1), 1.6), False)
sketch16.addConstraint([
    Sketcher.Constraint("PointOnObject", 0, 3, -2),
    Sketcher.Constraint("Diameter", 0, Q("0.125 in")),
    Sketcher.Constraint("DistanceY", -1, 1, 0, 3, Q("4 in")),
])
pocket4 = body2.newObject("PartDesign::Pocket", "Pocket003")
pocket4.Profile = sketch16
pocket4.Length = Q("0.125 in")
pocket4.Reversed = True

doc.recompute()
